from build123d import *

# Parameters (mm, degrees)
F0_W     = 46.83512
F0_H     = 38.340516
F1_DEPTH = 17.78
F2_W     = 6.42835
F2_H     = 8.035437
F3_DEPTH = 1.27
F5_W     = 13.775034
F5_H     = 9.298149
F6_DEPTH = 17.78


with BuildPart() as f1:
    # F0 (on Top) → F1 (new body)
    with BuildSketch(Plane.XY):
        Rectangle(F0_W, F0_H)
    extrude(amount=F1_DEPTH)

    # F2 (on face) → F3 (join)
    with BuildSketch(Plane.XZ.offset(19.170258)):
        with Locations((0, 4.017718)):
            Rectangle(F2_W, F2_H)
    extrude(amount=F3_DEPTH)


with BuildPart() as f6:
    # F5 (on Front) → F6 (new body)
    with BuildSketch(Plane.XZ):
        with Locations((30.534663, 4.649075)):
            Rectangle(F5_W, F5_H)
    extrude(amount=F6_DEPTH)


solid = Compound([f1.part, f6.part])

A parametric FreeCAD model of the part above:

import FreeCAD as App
import Part
import Sketcher

V = App.Vector
Q = App.Units.Quantity


def add_polygon(sketch, points):
    """Adds a closed chain of lines whose ends are joined by coincident constraints."""
    first, n = sketch.GeometryCount, len(points)
    for a, b in zip(points, points[1:] + points[:1]):
        sketch.addGeometry(Part.LineSegment(App.Vector(*a, 0), App.Vector(*b, 0)), False)
    for i in range(n):
        sketch.addConstraint(Sketcher.Constraint("Coincident", first + i, 2, first + (i + 1) % n, 1))

doc = App.newDocument("Part")
params = doc.addObject("Spreadsheet::Sheet", "Params")
for row, (alias, value) in enumerate([
    ("pad1_length", "0.7 in"),
    ("pad2_length", "0.05 in"),
    ("pad3_length", "0.7 in"),
], start=1):
    params.set(f"A{row}", alias)
    params.set(f"B{row}", "=" + value)
    params.setAlias(f"B{row}", alias)

body = doc.addObject("PartDesign::Body", "Body")

sketch1 = body.newObject("Sketcher::SketchObject", "Sketch")
sketch1.AttachmentSupport = (doc.getObject("XY_Plane"), [""])
sketch1.MapMode = "FlatFace"
add_polygon(sketch1, [(-23, 19), (-23, -19), (23, -19), (23, 19)])
sketch1.addConstraint([
    Sketcher.Constraint("Vertical", 0),
    Sketcher.Constraint("Horizontal", 1),
    Sketcher.Constraint("Vertical", 2),
    Sketcher.Constraint("Horizontal", 3),
    Sketcher.Constraint("Symmetric", 0, 2, 2, 2, -1, 1),
    Sketcher.Constraint("DistanceX", 1, 1, 1, 2, Q("46.83512 mm")),
    Sketcher.Constraint("DistanceY", 0, 2, 0, 1, Q("38.340516 mm")),
])
pad1 = body.newObject("PartDesign::Pad", "Pad")
pad1.Profile = sketch1
pad1.setExpression("Length", "Params.pad1_length")

sketch2 = body.newObject("Sketcher::SketchObject", "Sketch001")
sketch2.AttachmentSupport = (doc.getObject("XZ_Plane"), [""])
sketch2.MapMode = "FlatFace"
sketch2.AttachmentOffset = App.Placement(V(0, 0, 19.170258), App.Rotation())
add_polygon(sketch2, [(-3, 8), (-3, 0), (3, 0), (3, 8)])
sketch2.addConstraint([
    Sketcher.Constraint("Vertical", 0),
    Sketcher.Constraint("Horizontal", 1),
    Sketcher.Constraint("Vertical", 2),
    Sketcher.Constraint("Horizontal", 3),
    Sketcher.Constraint("Symmetric", 0, 2, 1, 2, -1, 1),
    Sketcher.Constraint("DistanceX", 1, 1, 1, 2, Q("6.42835 mm")),
    Sketcher.Constraint("DistanceY", 0, 2, 0, 1, Q("8.035437 mm")),
])
pad2 = body.newObject("PartDesign::Pad", "Pad001")
pad2.Profile = sketch2
pad2.setExpression("Length", "Params.pad2_length")
body2 = doc.addObject("PartDesign::Body", "Body001")

sketch3 = body2.newObject("Sketcher::SketchObject", "Sketch002")
sketch3.AttachmentSupport = (doc.getObject("XZ_Plane001"), [""])
sketch3.MapMode = "FlatFace"
add_polygon(sketch3, [(24, 9), (24, 0), (37, 0), (37, 9)])
sketch3.addConstraint([
    Sketcher.Constraint("Vertical", 0),
    Sketcher.Constraint("Horizontal", 1),
    Sketcher.Constraint("Vertical", 2),
    Sketcher.Constraint("Horizontal", 3),
    Sketcher.Constraint("PointOnObject", 0, 2, -1),
    Sketcher.Constraint("DistanceY", 0, 2, 0, 1, Q("9.298149 mm")),
    Sketcher.Constraint("DistanceX", 1, 1, 1, 2, Q("13.775034 mm")),
    Sketcher.Constraint("DistanceX", -1, 1, 1, 2, Q("37.42218 mm")),
])
pad3 = body2.newObject("PartDesign::Pad", "Pad002")
pad3.Profile = sketch3
pad3.setExpression("Length", "Params.pad3_length")

doc.recompute()
